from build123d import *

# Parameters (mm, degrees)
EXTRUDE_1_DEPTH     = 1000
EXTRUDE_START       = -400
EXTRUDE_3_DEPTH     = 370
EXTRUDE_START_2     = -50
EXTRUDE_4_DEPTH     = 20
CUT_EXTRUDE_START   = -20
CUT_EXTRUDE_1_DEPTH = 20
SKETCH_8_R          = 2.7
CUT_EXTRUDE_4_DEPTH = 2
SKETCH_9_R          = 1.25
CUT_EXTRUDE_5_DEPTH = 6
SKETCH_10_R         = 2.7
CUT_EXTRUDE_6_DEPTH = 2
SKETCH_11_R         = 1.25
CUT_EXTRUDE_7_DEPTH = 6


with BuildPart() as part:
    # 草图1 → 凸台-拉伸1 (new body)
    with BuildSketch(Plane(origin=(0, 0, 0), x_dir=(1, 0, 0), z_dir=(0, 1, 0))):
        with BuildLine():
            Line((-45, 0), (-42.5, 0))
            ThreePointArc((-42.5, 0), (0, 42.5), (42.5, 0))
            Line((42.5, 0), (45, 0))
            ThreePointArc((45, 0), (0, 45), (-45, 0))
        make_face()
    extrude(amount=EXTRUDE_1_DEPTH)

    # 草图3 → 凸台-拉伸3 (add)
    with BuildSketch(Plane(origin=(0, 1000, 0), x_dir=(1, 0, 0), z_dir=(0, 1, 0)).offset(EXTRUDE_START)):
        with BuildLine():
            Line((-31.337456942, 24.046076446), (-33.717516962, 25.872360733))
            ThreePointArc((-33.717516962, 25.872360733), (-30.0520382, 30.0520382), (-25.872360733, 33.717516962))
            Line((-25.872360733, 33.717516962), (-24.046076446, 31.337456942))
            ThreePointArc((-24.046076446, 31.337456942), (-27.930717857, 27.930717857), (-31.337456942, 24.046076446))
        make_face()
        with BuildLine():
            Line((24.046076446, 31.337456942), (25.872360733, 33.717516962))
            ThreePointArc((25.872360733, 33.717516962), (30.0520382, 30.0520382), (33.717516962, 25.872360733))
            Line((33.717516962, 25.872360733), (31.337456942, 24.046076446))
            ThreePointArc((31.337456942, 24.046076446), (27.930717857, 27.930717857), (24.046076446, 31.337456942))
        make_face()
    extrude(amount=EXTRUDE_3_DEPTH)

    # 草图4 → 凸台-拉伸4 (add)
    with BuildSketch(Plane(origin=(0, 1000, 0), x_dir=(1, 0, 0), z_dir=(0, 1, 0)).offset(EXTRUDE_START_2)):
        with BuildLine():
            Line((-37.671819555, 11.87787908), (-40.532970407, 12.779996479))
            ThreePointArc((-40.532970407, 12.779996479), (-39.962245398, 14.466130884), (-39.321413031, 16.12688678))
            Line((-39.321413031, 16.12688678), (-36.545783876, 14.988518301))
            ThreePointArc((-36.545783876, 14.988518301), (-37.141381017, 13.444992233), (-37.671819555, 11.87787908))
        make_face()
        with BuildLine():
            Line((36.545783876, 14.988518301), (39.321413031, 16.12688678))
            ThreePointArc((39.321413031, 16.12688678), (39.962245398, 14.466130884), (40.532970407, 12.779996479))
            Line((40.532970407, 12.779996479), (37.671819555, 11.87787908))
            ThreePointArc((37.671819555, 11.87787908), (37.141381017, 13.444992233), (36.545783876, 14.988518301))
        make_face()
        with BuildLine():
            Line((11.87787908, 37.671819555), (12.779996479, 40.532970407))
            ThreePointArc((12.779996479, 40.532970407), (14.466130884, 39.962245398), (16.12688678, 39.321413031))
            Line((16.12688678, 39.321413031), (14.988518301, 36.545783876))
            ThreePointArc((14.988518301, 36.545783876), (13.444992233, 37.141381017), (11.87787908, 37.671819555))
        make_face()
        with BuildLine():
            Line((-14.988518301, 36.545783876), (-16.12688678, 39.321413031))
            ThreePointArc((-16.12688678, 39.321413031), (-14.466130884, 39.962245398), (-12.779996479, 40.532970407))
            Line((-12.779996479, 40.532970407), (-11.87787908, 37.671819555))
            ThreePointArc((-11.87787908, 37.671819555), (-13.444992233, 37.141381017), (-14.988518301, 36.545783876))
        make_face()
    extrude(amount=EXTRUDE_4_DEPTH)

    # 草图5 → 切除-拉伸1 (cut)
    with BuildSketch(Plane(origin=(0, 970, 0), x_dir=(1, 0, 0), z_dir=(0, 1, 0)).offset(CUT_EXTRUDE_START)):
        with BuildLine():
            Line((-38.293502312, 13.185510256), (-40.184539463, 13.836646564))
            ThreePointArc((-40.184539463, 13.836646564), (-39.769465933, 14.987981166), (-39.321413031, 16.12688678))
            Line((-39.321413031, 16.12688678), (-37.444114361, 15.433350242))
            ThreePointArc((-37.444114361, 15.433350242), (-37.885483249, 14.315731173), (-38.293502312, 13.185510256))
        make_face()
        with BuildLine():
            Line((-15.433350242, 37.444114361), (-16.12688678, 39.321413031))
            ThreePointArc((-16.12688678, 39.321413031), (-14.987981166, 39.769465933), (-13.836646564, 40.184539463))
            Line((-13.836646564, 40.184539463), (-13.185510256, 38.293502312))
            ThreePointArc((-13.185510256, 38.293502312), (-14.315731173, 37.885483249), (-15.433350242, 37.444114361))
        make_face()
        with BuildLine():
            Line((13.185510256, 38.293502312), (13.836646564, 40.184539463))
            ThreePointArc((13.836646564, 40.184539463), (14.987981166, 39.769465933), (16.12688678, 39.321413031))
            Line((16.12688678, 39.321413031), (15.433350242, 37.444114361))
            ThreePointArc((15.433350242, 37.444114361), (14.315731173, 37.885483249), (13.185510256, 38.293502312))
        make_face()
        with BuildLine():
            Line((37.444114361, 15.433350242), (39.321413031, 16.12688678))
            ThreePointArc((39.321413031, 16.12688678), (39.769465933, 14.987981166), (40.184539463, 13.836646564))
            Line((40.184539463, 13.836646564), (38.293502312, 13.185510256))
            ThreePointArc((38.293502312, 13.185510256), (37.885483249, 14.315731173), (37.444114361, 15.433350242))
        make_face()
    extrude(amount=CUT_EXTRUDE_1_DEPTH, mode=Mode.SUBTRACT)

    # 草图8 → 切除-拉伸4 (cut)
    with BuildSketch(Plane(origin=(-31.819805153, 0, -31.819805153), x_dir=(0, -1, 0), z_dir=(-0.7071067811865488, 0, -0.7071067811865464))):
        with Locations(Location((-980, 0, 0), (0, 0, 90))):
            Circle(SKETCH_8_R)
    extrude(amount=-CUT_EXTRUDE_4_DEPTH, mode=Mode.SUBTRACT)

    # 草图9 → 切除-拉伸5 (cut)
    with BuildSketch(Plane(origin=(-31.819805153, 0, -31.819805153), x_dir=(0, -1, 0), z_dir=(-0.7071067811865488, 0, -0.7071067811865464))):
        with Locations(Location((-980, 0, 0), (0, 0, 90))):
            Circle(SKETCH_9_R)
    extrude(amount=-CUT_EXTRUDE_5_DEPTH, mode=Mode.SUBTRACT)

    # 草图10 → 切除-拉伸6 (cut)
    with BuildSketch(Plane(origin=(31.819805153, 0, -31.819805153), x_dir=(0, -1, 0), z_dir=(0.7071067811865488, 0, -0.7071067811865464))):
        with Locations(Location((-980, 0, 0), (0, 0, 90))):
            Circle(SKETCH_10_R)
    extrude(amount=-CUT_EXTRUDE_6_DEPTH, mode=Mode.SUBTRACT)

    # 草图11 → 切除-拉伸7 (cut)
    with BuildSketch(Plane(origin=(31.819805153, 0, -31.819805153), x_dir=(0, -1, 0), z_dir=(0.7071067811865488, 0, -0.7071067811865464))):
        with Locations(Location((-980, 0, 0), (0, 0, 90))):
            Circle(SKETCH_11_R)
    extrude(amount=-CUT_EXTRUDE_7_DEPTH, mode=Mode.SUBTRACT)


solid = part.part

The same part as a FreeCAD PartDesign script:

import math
import FreeCAD as App
import Part
import Sketcher

V = App.Vector
Q = App.Units.Quantity

doc = App.newDocument("Part")
body = doc.addObject("PartDesign::Body", "Body")

sketch1 = body.newObject("Sketcher::SketchObject", "Sketch")
sketch1.AttachmentSupport = (doc.getObject("XZ_Plane"), [""])
sketch1.MapMode = "FlatFace"
sketch1.addGeometry([
    Part.LineSegment(V(-45, 0, 0), V(-42.5, 0, 0)),
    Part.ArcOfCircle(Part.Circle(V(0, 0, 0), V(0, 0, 1), 42.5), math.radians(180), math.radians(360)),
    Part.LineSegment(V(42.5, 0, 0), V(45, 0, 0)),
    Part.ArcOfCircle(Part.Circle(V(0, 0, 0), V(0, 0, 1), 45), math.radians(180), math.radians(360)),
], False)
sketch1.addConstraint([
    Sketcher.Constraint("Coincident", 0, 2, 1, 1),
    Sketcher.Constraint("Coincident", 1, 2, 2, 1),
    Sketcher.Constraint("Coincident", 2, 2, 3, 2),
    Sketcher.Constraint("Coincident", 3, 1, 0, 1),
    Sketcher.Constraint("Horizontal", 0),
    Sketcher.Constraint("Horizontal", 2),
    Sketcher.Constraint("Coincident", 1, 3, -1, 1),
    Sketcher.Constraint("Coincident", 3, 3, -1, 1),
    Sketcher.Constraint("PointOnObject", 0, 2, -1),
    Sketcher.Constraint("PointOnObject", 1, 2, -1),
    Sketcher.Constraint("Radius", 3, Q("45 mm")),
    Sketcher.Constraint("Radius", 1, Q("42.5 mm")),
])
pad1 = body.newObject("PartDesign::Pad", "Pad")
pad1.Profile = sketch1
pad1.Length = 1000
pad1.Reversed = True

sketch2 = body.newObject("Sketcher::SketchObject", "Sketch001")
sketch2.AttachmentSupport = (doc.getObject("XZ_Plane"), [""])
sketch2.MapMode = "FlatFace"
sketch2.AttachmentOffset = App.Placement(V(0, 0, -600), App.Rotation())
sketch2.addGeometry([
    Part.LineSegment(V(-33.717517, -25.872361, 0), V(-31.337457, -24.046076, 0)),
    Part.ArcOfCircle(Part.Circle(V(0, 0, 0), V(0, 0, 1), 39.5), math.radians(-142.5), math.radians(-127.5)),
    Part.LineSegment(V(-24.046076, -31.337457, 0), V(-25.872361, -33.717517, 0)),
    Part.ArcOfCircle(Part.Circle(V(0, 0, 0), V(0, 0, 1), 42.5), math.radians(-142.5), math.radians(-127.5)),
    Part.LineSegment(V(25.872361, -33.717517, 0), V(24.046076, -31.337457, 0)),
    Part.ArcOfCircle(Part.Circle(V(0, 0, 0), V(0, 0, 1), 39.5), math.radians(-52.5), math.radians(-37.5)),
    Part.LineSegment(V(31.337457, -24.046076, 0), V(33.717517, -25.872361, 0)),
    Part.ArcOfCircle(Part.Circle(V(0, 0, 0), V(0, 0, 1), 42.5), math.radians(-52.5), math.radians(-37.5)),
], False)
sketch2.addConstraint([
    Sketcher.Constraint("Coincident", 0, 2, 1, 1),
    Sketcher.Constraint("Coincident", 1, 2, 2, 1),
    Sketcher.Constraint("Coincident", 2, 2, 3, 2),
    Sketcher.Constraint("Coincident", 3, 1, 0, 1),
    Sketcher.Constraint("Coincident", 4, 2, 5, 1),
    Sketcher.Constraint("Coincident", 5, 2, 6, 1),
    Sketcher.Constraint("Coincident", 6, 2, 7, 2),
    Sketcher.Constraint("Coincident", 7, 1, 4, 1),
    Sketcher.Constraint("Coincident", 1, 3, -1, 1),
    Sketcher.Constraint("Coincident", 3, 3, -1, 1),
    Sketcher.Constraint("Coincident", 5, 3, -1, 1),
    Sketcher.Constraint("Coincident", 7, 3, -1, 1),
    Sketcher.Constraint("Equal", 1, 5),
    Sketcher.Constraint("Equal", 3, 7),
    Sketcher.Constraint("Perpendicular", 0, 4),
    Sketcher.Constraint("Perpendicular", 2, 6),
    Sketcher.Constraint("Horizontal", 1, 2, 4, 2),
    Sketcher.Constraint("Horizontal", 0, 2, 5, 2),
    Sketcher.Constraint("Horizontal", 3, 1, 6, 2),
    Sketcher.Constraint("Radius", 1, Q("39.5 mm")),
    Sketcher.Constraint("Radius", 3, Q("42.5 mm")),
    Sketcher.Constraint("Angle", 0, Q("37.5 deg")),
    Sketcher.Constraint("DistanceX", 2, 2, -1, 1, Q("25.872361 mm")),
    Sketcher.Constraint("DistanceY", 3, 1, -1, 1, Q("25.872361 mm")),
])
pad2 = body.newObject("PartDesign::Pad", "Pad001")
pad2.Profile = sketch2
pad2.Length = 370
pad2.Reversed = True

sketch3 = body.newObject("Sketcher::SketchObject", "Sketch002")
sketch3.AttachmentSupport = (doc.getObject("XZ_Plane"), [""])
sketch3.MapMode = "FlatFace"
sketch3.AttachmentOffset = App.Placement(V(0, 0, -950), App.Rotation())
sketch3.addGeometry([
    Part.LineSegment(V(-40.53297, -12.779996, 0), V(-37.67182, -11.877879, 0)),
    Part.ArcOfCircle(Part.Circle(V(0, 0, 0), V(0, 0, 1), 39.5), math.radians(-162.5), math.radians(-157.7)),
    Part.LineSegment(V(-36.545784, -14.988518, 0), V(-39.321413, -16.126887, 0)),
    Part.ArcOfCircle(Part.Circle(V(0, 0, 0), V(0, 0, 1), 42.5), math.radians(-162.5), math.radians(-157.7)),
    Part.LineSegment(V(39.321413, -16.126887, 0), V(36.545784, -14.988518, 0)),
    Part.ArcOfCircle(Part.Circle(V(0, 0, 0), V(0, 0, 1), 39.5), math.radians(-22.3), math.radians(-17.5)),
    Part.LineSegment(V(37.67182, -11.877879, 0), V(40.53297, -12.779996, 0)),
    Part.ArcOfCircle(Part.Circle(V(0, 0, 0), V(0, 0, 1), 42.5), math.radians(-22.3), math.radians(-17.5)),
    Part.LineSegment(V(12.779996, -40.53297, 0), V(11.877879, -37.67182, 0)),
    Part.ArcOfCircle(Part.Circle(V(0, 0, 0), V(0, 0, 1), 39.5), math.radians(-72.5), math.radians(-67.7)),
    Part.LineSegment(V(14.988518, -36.545784, 0), V(16.126887, -39.321413, 0)),
    Part.ArcOfCircle(Part.Circle(V(0, 0, 0), V(0, 0, 1), 42.5), math.radians(-72.5), math.radians(-67.7)),
    Part.LineSegment(V(-16.126887, -39.321413, 0), V(-14.988518, -36.545784, 0)),
    Part.ArcOfCircle(Part.Circle(V(0, 0, 0), V(0, 0, 1), 39.5), math.radians(-112.3), math.radians(-107.5)),
    Part.LineSegment(V(-11.877879, -37.67182, 0), V(-12.779996, -40.53297, 0)),
    Part.ArcOfCircle(Part.Circle(V(0, 0, 0), V(0, 0, 1), 42.5), math.radians(-112.3), math.radians(-107.5)),
], False)
sketch3.addConstraint([
    Sketcher.Constraint("Coincident", 0, 2, 1, 1),
    Sketcher.Constraint("Coincident", 1, 2, 2, 1),
    Sketcher.Constraint("Coincident", 2, 2, 3, 2),
    Sketcher.Constraint("Coincident", 3, 1, 0, 1),
    Sketcher.Constraint("Coincident", 4, 2, 5, 1),
    Sketcher.Constraint("Coincident", 5, 2, 6, 1),
    Sketcher.Constraint("Coincident", 6, 2, 7, 2),
    Sketcher.Constraint("Coincident", 7, 1, 4, 1),
    Sketcher.Constraint("Coincident", 8, 2, 9, 1),
    Sketcher.Constraint("Coincident", 9, 2, 10, 1),
    Sketcher.Constraint("Coincident", 10, 2, 11, 2),
    Sketcher.Constraint("Coincident", 11, 1, 8, 1),
    Sketcher.Constraint("Coincident", 12, 2, 13, 1),
    Sketcher.Constraint("Coincident", 13, 2, 14, 1),
    Sketcher.Constraint("Coincident", 14, 2, 15, 2),
    Sketcher.Constraint("Coincident", 15, 1, 12, 1),
    Sketcher.Constraint("Coincident", 1, 3, -1, 1),
    Sketcher.Constraint("Coincident", 3, 3, -1, 1),
    Sketcher.Constraint("Coincident", 5, 3, -1, 1),
    Sketcher.Constraint("Coincident", 7, 3, -1, 1),
    Sketcher.Constraint("Coincident", 9, 3, -1, 1),
    Sketcher.Constraint("Coincident", 11, 3, -1, 1),
    Sketcher.Constraint("Coincident", 13, 3, -1, 1),
    Sketcher.Constraint("Coincident", 15, 3, -1, 1),
    Sketcher.Constraint("Equal", 1, 5),
    Sketcher.Constraint("Equal", 3, 7),
    Sketcher.Constraint("Equal", 5, 9),
    Sketcher.Constraint("Equal", 7, 11),
    Sketcher.Constraint("Equal", 9, 13),
    Sketcher.Constraint("Equal", 11, 15),
    Sketcher.Constraint("Perpendicular", 0, 8),
    Sketcher.Constraint("Perpendicular", 2, 10),
    Sketcher.Constraint("Perpendicular", 4, 12),
    Sketcher.Constraint("Perpendicular", 6, 14),
    Sketcher.Constraint("Horizontal", 1, 2, 4, 2),
    Sketcher.Constraint("Horizontal", 0, 2, 5, 2),
    Sketcher.Constraint("Horizontal", 3, 1, 6, 2),
    Sketcher.Constraint("Horizontal", 2, 2, 7, 1),
    Sketcher.Constraint("Horizontal", 9, 2, 12, 2),
    Sketcher.Constraint("Horizontal", 8, 2, 13, 2),
    Sketcher.Constraint("Radius", 1, Q("39.5 mm")),
    Sketcher.Constraint("Radius", 3, Q("42.5 mm")),
    Sketcher.Constraint("Angle", 0, Q("17.5 deg")),
    Sketcher.Constraint("Angle", 2, Q("-157.7 deg")),
    Sketcher.Constraint("DistanceY", 8, 2, 4, 2, Q("22.683301 mm")),
    Sketcher.Constraint("DistanceX", 9, 2, 5, 2, Q("22.683301 mm")),
    Sketcher.Constraint("DistanceX", 0, 2, -1, 1, Q("37.67182 mm")),
    Sketcher.Constraint("DistanceY", 1, 2, -1, 1, Q("14.988518 mm")),
])
pad3 = body.newObject("PartDesign::Pad", "Pad002")
pad3.Profile = sketch3
pad3.Length = 20
pad3.Reversed = True

sketch4 = body.newObject("Sketcher::SketchObject", "Sketch003")
sketch4.AttachmentSupport = (doc.getObject("XZ_Plane"), [""])
sketch4.MapMode = "FlatFace"
sketch4.AttachmentOffset = App.Placement(V(0, 0, -950), App.Rotation())
sketch4.addGeometry([
    Part.LineSegment(V(-40.184539, -13.836647, 0), V(-38.293502, -13.18551, 0)),
    Part.ArcOfCircle(Part.Circle(V(-0.000001, 0, 0), V(0, 0, 1), 40.499999), math.radians(-161), math.radians(-157.6)),
    Part.LineSegment(V(-37.444114, -15.43335, 0), V(-39.321413, -16.126887, 0)),
    Part.ArcOfCircle(Part.Circle(V(-0.000001, 0, 0), V(0, 0, 1), 42.499999), math.radians(-161), math.radians(-157.7)),
    Part.LineSegment(V(-16.126887, -39.321413, 0), V(-15.43335, -37.444114, 0)),
    Part.ArcOfCircle(Part.Circle(V(0, -0.000001, 0), V(0, 0, 1), 40.499999), math.radians(-112.4), math.radians(-109)),
    Part.LineSegment(V(-13.18551, -38.293502, 0), V(-13.836647, -40.184539, 0)),
    Part.ArcOfCircle(Part.Circle(V(0, -0.000001, 0), V(0, 0, 1), 42.499999), math.radians(-112.3), math.radians(-109)),
    Part.LineSegment(V(13.836647, -40.184539, 0), V(13.18551, -38.293502, 0)),
    Part.ArcOfCircle(Part.Circle(V(0, -0.000001, 0), V(0, 0, 1), 40.499999), math.radians(-71), math.radians(-67.6)),
    Part.LineSegment(V(15.43335, -37.444114, 0), V(16.126887, -39.321413, 0)),
    Part.ArcOfCircle(Part.Circle(V(0, -0.000001, 0), V(0, 0, 1), 42.499999), math.radians(-71), math.radians(-67.7)),
    Part.LineSegment(V(39.321413, -16.126887, 0), V(37.444114, -15.43335, 0)),
    Part.ArcOfCircle(Part.Circle(V(0.000001, 0, 0), V(0, 0, 1), 40.499999), math.radians(-22.4), math.radians(-19)),
    Part.LineSegment(V(38.293502, -13.18551, 0), V(40.184539, -13.836647, 0)),
    Part.ArcOfCircle(Part.Circle(V(0.000001, 0, 0), V(0, 0, 1), 42.499999), math.radians(-22.3), math.radians(-19)),
], False)
sketch4.addConstraint([
    Sketcher.Constraint("Coincident", 0, 2, 1, 1),
    Sketcher.Constraint("Coincident", 1, 2, 2, 1),
    Sketcher.Constraint("Coincident", 2, 2, 3, 2),
    Sketcher.Constraint("Coincident", 3, 1, 0, 1),
    Sketcher.Constraint("Coincident", 4, 2, 5, 1),
    Sketcher.Constraint("Coincident", 5, 2, 6, 1),
    Sketcher.Constraint("Coincident", 6, 2, 7, 2),
    Sketcher.Constraint("Coincident", 7, 1, 4, 1),
    Sketcher.Constraint("Coincident", 8, 2, 9, 1),
    Sketcher.Constraint("Coincident", 9, 2, 10, 1),
    Sketcher.Constraint("Coincident", 10, 2, 11, 2),
    Sketcher.Constraint("Coincident", 11, 1, 8, 1),
    Sketcher.Constraint("Coincident", 12, 2, 13, 1),
    Sketcher.Constraint("Coincident", 13, 2, 14, 1),
    Sketcher.Constraint("Coincident", 14, 2, 15, 2),
    Sketcher.Constraint("Coincident", 15, 1, 12, 1),
    Sketcher.Constraint("Coincident", 1, 3, -1, 1),
    Sketcher.Constraint("Coincident", 3, 3, -1, 1),
    Sketcher.Constraint("Coincident", 5, 3, -1, 1),
    Sketcher.Constraint("Coincident", 7, 3, -1, 1),
    Sketcher.Constraint("Coincident", 9, 3, -1, 1),
    Sketcher.Constraint("Coincident", 11, 3, -1, 1),
    Sketcher.Constraint("Coincident", 13, 3, -1, 1),
    Sketcher.Constraint("Coincident", 15, 3, -1, 1),
    Sketcher.Constraint("Equal", 1, 5),
    Sketcher.Constraint("Equal", 3, 7),
    Sketcher.Constraint("Equal", 5, 9),
    Sketcher.Constraint("Equal", 7, 11),
    Sketcher.Constraint("Equal", 9, 13),
    Sketcher.Constraint("Equal", 11, 15),
    Sketcher.Constraint("Perpendicular", 0, 8),
    Sketcher.Constraint("Perpendicular", 2, 10),
    Sketcher.Constraint("Perpendicular", 4, 12),
    Sketcher.Constraint("Perpendicular", 6, 14),
    Sketcher.Constraint("Horizontal", 5, 2, 8, 2),
    Sketcher.Constraint("Horizontal", 4, 2, 9, 2),
    Sketcher.Constraint("Horizontal", 7, 1, 10, 2),
    Sketcher.Constraint("Horizontal", 6, 2, 11, 1),
    Sketcher.Constraint("Horizontal", 1, 2, 12, 2),
    Sketcher.Constraint("Horizontal", 0, 2, 13, 2),
    Sketcher.Constraint("Radius", 1, Q("40.499999 mm")),
    Sketcher.Constraint("Radius", 3, Q("42.499999 mm")),
    Sketcher.Constraint("Angle", 0, Q("19 deg")),
    Sketcher.Constraint("DistanceX", 0, 2, 3, 3, Q("38.293501 mm")),
    Sketcher.Constraint("DistanceX", 2, 2, 1, 2, Q("1.877299 mm")),
    Sketcher.Constraint("DistanceY", 8, 2, 11, 3, Q("38.293501 mm")),
    Sketcher.Constraint("DistanceX", 4, 2, 9, 2, Q("30.8667 mm")),
    Sketcher.Constraint("DistanceY", 1, 2, -1, 1, Q("15.43335 mm")),
])
pocket1 = body.newObject("PartDesign::Pocket", "Pocket")
pocket1.Profile = sketch4
pocket1.Length = 20

sketch5 = body.newObject("Sketcher::SketchObject", "Sketch004")
sketch5.Placement = App.Placement(V(-31.819805, 0, -31.819805), App.Rotation(V(0, -1, 0), V(-0.707106781, 0, 0.707106781), V(-0.707106781, 0, -0.707106781), "ZXY"))
sketch5.addGeometry(Part.Circle(V(-980, 0, 0), V(0, 0, 1), 2.7), False)
sketch5.addConstraint([
    Sketcher.Constraint("PointOnObject", 0, 3, -1),
    Sketcher.Constraint("Diameter", 0, Q("5.4 mm")),
    Sketcher.Constraint("DistanceX", 0, 3, -1, 1, Q("980 mm")),
])
pocket2 = body.newObject("PartDesign::Pocket", "Pocket001")
pocket2.Profile = sketch5
pocket2.Length = 2

sketch6 = body.newObject("Sketcher::SketchObject", "Sketch005")
sketch6.Placement = App.Placement(V(-31.819805, 0, -31.819805), App.Rotation(V(0, -1, 0), V(-0.707106781, 0, 0.707106781), V(-0.707106781, 0, -0.707106781), "ZXY"))
sketch6.addGeometry(Part.Circle(V(-980, 0, 0), V(0, 0, 1), 1.25), False)
sketch6.addConstraint([
    Sketcher.Constraint("PointOnObject", 0, 3, -1),
    Sketcher.Constraint("Diameter", 0, Q("2.5 mm")),
    Sketcher.Constraint("DistanceX", 0, 3, -1, 1, Q("980 mm")),
])
pocket3 = body.newObject("PartDesign::Pocket", "Pocket002")
pocket3.Profile = sketch6
pocket3.Length = 6

sketch7 = body.newObject("Sketcher::SketchObject", "Sketch006")
sketch7.Placement = App.Placement(V(31.819805, 0, -31.819805), App.Rotation(V(0, -1, 0), V(-0.707106781, 0, -0.707106781), V(0.707106781, 0, -0.707106781), "ZXY"))
sketch7.addGeometry(Part.Circle(V(-980, 0, 0), V(0, 0, 1), 2.7), False)
sketch7.addConstraint([
    Sketcher.Constraint("PointOnObject", 0, 3, -1),
    Sketcher.Constraint("Diameter", 0, Q("5.4 mm")),
    Sketcher.Constraint("DistanceX", 0, 3, -1, 1, Q("980 mm")),
])
pocket4 = body.newObject("PartDesign::Pocket", "Pocket003")
pocket4.Profile = sketch7
pocket4.Length = 2

sketch8 = body.newObject("Sketcher::SketchObject", "Sketch007")
sketch8.Placement = App.Placement(V(31.819805, 0, -31.819805), App.Rotation(V(0, -1, 0), V(-0.707106781, 0, -0.707106781), V(0.707106781, 0, -0.707106781), "ZXY"))
sketch8.addGeometry(Part.Circle(V(-980, 0, 0), V(0, 0, 1), 1.25), False)
sketch8.addConstraint([
    Sketcher.Constraint("PointOnObject", 0, 3, -1),
    Sketcher.Constraint("Diameter", 0, Q("2.5 mm")),
    Sketcher.Constraint("DistanceX", 0, 3, -1, 1, Q("980 mm")),
])
pocket5 = body.newObject("PartDesign::Pocket", "Pocket004")
pocket5.Profile = sketch8
pocket5.Length = 6

doc.recompute()
